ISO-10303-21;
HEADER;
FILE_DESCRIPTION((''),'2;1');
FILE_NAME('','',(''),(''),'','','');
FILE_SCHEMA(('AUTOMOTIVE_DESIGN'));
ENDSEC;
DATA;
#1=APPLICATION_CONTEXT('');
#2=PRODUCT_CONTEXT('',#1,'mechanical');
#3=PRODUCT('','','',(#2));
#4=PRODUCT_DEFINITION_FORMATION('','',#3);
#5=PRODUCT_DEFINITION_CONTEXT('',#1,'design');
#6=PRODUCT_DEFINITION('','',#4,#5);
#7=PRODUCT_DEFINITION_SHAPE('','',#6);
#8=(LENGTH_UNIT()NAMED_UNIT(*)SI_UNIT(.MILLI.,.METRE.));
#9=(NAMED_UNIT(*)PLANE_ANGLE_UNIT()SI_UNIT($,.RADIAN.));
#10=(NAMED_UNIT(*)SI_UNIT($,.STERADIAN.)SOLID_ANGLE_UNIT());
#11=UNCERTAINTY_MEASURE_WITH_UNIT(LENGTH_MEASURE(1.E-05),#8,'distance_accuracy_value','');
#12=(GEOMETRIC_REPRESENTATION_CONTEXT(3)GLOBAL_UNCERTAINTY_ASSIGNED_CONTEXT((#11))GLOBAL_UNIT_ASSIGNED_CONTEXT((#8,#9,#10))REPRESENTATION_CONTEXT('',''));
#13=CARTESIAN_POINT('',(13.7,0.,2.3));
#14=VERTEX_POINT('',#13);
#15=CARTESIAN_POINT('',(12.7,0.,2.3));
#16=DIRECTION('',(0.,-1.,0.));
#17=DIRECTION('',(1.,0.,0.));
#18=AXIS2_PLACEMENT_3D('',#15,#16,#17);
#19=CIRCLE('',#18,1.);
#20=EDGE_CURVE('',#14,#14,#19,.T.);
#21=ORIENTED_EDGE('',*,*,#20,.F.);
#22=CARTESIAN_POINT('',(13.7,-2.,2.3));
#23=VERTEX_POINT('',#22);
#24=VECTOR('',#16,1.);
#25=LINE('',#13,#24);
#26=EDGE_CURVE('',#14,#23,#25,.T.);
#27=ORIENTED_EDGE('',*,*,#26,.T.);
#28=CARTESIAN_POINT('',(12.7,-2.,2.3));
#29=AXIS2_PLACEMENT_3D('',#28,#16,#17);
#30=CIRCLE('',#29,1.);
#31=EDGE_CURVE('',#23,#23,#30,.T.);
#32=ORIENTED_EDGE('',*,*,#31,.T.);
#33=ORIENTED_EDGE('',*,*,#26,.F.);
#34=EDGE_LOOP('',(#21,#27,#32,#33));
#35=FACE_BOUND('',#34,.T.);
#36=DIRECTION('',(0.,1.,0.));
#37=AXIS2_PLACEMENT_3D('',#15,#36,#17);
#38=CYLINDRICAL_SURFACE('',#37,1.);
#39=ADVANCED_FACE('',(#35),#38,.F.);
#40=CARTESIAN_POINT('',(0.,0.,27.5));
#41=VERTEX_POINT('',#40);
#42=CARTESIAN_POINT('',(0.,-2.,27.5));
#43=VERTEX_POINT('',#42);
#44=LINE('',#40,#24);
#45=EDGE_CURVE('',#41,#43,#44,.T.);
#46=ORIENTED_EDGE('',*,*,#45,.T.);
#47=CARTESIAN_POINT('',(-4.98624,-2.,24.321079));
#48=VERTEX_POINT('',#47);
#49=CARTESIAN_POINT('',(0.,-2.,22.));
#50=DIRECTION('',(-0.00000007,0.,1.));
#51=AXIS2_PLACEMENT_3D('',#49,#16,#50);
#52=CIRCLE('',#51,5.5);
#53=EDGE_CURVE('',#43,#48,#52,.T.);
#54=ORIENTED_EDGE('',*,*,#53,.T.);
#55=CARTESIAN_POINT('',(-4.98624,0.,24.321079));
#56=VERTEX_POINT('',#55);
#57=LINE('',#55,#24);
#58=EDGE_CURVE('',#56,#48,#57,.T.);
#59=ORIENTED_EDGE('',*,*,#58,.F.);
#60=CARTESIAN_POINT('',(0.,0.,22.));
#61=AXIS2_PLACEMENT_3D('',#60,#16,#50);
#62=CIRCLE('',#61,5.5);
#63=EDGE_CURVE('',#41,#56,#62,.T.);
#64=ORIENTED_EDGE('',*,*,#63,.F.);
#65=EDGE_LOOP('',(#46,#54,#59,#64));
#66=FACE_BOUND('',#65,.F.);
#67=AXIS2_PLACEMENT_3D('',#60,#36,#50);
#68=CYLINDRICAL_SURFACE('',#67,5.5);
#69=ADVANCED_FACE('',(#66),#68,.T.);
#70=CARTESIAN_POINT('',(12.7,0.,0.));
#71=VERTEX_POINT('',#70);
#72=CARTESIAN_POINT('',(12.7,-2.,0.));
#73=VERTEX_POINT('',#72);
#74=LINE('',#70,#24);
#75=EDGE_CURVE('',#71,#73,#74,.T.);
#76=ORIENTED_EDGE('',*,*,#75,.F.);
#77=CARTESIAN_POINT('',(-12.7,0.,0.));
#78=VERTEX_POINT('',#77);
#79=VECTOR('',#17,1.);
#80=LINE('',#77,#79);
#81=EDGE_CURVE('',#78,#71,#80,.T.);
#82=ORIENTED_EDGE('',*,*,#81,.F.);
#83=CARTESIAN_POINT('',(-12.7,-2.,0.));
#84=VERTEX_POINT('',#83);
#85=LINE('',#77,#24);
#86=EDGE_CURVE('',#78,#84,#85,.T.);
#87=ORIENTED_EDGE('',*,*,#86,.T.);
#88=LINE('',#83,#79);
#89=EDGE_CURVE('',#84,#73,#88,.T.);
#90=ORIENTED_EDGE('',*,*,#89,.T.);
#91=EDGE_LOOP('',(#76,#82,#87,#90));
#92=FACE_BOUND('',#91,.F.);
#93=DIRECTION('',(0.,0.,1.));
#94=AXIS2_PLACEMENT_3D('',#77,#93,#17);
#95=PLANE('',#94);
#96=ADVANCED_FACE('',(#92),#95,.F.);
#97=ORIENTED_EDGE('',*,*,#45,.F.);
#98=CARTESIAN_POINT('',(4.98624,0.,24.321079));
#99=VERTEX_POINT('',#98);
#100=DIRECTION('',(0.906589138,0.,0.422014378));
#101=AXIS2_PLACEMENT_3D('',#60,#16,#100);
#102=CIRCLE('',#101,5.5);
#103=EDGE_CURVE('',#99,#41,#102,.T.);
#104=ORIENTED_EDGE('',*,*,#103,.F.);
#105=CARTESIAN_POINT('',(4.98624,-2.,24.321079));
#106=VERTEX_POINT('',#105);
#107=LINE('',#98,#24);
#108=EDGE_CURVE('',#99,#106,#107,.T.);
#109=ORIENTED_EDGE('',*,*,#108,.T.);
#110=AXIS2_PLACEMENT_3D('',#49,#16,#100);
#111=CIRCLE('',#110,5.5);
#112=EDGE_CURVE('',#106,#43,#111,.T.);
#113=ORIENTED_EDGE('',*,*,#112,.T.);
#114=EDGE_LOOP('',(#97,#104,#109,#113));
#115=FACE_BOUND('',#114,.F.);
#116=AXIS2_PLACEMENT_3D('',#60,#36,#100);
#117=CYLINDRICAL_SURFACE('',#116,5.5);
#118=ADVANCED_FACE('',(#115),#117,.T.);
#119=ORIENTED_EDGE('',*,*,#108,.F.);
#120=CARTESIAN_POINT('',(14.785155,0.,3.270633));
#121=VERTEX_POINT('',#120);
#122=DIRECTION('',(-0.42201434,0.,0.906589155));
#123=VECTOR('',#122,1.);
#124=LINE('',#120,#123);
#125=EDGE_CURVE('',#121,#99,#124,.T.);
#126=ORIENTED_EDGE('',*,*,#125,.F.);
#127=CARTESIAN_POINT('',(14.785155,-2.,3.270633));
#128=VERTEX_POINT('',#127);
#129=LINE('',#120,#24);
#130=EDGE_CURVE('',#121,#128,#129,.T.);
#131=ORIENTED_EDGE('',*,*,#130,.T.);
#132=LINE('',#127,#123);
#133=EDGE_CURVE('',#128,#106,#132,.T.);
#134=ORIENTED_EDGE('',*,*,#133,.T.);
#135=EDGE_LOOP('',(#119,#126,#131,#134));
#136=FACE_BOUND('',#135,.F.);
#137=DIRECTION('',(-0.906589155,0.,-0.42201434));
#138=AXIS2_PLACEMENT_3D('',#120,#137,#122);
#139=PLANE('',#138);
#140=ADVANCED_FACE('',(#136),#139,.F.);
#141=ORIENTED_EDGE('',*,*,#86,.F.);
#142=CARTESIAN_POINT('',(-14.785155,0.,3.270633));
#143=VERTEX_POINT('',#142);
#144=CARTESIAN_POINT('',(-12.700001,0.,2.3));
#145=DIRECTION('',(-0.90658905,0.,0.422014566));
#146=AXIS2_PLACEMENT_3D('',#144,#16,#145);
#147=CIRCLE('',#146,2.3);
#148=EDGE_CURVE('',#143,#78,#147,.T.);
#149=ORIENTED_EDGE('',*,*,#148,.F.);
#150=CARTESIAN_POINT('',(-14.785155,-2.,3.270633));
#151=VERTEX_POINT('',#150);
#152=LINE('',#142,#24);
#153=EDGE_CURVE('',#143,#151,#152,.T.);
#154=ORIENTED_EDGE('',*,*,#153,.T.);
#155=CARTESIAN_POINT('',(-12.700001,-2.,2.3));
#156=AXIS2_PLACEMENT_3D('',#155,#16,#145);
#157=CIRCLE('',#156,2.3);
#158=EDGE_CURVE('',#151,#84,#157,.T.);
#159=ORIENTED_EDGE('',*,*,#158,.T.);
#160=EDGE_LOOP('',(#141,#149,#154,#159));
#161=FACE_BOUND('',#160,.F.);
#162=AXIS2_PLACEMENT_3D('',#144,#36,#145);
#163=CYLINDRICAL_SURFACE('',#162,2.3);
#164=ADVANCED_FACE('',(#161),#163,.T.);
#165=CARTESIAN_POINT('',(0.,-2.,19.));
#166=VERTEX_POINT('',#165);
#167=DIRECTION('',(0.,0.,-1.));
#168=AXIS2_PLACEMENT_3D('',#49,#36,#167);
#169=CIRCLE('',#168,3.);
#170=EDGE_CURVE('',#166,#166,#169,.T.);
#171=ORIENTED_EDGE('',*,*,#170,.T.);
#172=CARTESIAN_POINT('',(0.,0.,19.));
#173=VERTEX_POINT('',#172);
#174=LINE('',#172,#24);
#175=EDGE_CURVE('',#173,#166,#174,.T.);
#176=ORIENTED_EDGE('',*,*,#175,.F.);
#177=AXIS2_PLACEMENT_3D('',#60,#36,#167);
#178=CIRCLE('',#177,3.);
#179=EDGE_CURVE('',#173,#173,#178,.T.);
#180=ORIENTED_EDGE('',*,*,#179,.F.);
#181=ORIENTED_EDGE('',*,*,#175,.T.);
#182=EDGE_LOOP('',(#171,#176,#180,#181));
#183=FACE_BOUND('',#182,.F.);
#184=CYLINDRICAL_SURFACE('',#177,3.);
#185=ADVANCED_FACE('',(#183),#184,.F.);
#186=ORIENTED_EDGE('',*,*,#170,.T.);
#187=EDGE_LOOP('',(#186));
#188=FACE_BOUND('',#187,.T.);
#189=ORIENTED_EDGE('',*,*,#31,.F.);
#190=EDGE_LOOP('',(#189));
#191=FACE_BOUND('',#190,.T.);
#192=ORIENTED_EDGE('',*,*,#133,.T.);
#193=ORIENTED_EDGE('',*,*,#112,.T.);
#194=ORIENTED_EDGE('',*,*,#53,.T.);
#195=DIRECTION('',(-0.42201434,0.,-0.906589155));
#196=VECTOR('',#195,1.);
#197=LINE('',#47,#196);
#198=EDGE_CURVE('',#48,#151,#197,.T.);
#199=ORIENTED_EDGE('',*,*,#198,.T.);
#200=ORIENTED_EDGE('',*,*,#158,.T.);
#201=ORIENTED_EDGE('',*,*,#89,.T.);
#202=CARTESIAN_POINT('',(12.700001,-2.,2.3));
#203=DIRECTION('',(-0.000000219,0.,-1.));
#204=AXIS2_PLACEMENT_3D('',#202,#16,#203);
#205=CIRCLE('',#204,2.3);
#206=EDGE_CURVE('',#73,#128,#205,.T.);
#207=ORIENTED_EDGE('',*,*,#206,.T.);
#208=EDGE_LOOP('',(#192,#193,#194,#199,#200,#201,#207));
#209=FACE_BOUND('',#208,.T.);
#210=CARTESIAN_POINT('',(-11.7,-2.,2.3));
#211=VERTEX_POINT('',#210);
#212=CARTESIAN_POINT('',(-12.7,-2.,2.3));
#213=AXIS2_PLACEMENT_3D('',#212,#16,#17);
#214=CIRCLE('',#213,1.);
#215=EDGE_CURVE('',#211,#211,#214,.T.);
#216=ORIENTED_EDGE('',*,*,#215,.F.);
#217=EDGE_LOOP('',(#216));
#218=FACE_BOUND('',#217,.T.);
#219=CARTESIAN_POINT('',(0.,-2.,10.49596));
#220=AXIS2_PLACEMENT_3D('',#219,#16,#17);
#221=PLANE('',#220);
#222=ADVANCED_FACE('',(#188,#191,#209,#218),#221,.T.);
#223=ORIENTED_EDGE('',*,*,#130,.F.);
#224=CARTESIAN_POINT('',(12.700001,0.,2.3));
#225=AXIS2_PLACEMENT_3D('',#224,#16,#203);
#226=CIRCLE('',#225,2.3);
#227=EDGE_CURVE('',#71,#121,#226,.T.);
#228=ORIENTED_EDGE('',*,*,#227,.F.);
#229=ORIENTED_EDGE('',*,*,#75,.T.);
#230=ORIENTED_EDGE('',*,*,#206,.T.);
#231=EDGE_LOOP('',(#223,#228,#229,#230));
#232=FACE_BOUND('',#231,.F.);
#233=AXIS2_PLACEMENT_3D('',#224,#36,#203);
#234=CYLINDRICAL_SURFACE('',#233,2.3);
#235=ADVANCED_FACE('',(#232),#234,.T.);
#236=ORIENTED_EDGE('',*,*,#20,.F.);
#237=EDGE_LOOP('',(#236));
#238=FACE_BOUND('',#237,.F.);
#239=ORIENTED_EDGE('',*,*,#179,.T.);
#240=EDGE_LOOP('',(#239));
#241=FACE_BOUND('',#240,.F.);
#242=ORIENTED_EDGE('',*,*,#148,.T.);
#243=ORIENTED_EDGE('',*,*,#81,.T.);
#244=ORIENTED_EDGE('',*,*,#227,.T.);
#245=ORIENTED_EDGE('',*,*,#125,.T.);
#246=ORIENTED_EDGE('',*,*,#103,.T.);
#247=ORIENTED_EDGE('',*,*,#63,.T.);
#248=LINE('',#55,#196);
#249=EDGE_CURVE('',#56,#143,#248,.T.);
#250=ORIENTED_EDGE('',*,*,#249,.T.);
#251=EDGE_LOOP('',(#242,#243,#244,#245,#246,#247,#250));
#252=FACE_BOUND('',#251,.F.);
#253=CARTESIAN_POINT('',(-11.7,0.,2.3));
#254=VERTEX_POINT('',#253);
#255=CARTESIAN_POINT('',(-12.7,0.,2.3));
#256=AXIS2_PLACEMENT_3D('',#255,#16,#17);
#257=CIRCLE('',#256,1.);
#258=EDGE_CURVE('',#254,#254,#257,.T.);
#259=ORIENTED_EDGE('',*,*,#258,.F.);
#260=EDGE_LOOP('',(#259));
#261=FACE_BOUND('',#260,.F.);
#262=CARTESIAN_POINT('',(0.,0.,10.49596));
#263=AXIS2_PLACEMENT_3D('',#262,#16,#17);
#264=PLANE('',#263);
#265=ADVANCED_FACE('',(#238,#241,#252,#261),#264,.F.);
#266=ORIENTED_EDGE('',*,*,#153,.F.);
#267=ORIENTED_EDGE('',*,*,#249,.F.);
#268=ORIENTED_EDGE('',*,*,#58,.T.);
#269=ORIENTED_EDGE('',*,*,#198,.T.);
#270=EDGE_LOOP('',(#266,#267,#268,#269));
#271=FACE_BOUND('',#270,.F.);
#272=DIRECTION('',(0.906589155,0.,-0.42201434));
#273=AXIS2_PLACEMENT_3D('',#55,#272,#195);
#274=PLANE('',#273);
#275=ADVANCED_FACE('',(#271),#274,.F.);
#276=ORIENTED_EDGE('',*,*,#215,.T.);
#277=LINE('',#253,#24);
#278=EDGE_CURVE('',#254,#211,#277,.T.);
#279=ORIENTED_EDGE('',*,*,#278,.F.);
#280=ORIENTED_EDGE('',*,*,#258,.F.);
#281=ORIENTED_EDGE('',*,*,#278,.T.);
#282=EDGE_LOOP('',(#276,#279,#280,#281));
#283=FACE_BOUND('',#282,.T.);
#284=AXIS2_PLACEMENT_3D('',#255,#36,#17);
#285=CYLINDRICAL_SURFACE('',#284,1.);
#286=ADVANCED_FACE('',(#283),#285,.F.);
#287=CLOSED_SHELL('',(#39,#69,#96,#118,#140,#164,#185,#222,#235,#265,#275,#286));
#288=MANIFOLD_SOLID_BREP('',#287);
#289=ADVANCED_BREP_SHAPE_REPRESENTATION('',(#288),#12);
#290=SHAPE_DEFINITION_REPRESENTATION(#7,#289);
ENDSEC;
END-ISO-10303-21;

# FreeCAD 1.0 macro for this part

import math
import FreeCAD as App
import Part
import Sketcher

doc = App.newDocument("Part")
body = doc.addObject("PartDesign::Body", "Body")

sketch1 = body.newObject("Sketcher::SketchObject", "Sketch")
sketch1.AttachmentSupport = (doc.getObject("XZ_Plane"), [""])
sketch1.MapMode = "FlatFace"
sketch1.addGeometry(Part.LineSegment(App.Vector(14.8, 3.3, 0), App.Vector(5, 24.3, 0)), False)
sketch1.addGeometry(Part.ArcOfCircle(Part.Circle(App.Vector(0, 22, 0), App.Vector(0, 0, 1), 5.5), math.radians(25), math.radians(90)), False)
sketch1.addGeometry(Part.ArcOfCircle(Part.Circle(App.Vector(0, 22, 0), App.Vector(0, 0, 1), 5.5), math.radians(90), math.radians(155)), False)
sketch1.addGeometry(Part.LineSegment(App.Vector(-5, 24.3, 0), App.Vector(-14.8, 3.3, 0)), False)
sketch1.addGeometry(Part.ArcOfCircle(Part.Circle(App.Vector(-12.7, 2.3, 0), App.Vector(0, 0, 1), 2.3), math.radians(155), math.radians(270)), False)
sketch1.addGeometry(Part.LineSegment(App.Vector(-12.7, 0, 0), App.Vector(12.7, 0, 0)), False)
sketch1.addGeometry(Part.ArcOfCircle(Part.Circle(App.Vector(12.7, 2.3, 0), App.Vector(0, 0, 1), 2.3), math.radians(-90), math.radians(25)), False)
sketch1.addGeometry(Part.Circle(App.Vector(-12.7, 2.3, 0), App.Vector(0, 0, 1), 1), False)
sketch1.addGeometry(Part.Circle(App.Vector(12.7, 2.3, 0), App.Vector(0, 0, 1), 1), False)
sketch1.addGeometry(Part.Circle(App.Vector(0, 22, 0), App.Vector(0, 0, 1), 3), False)
sketch1.addConstraint(Sketcher.Constraint("Tangent", 0, 2, 1, 1))
sketch1.addConstraint(Sketcher.Constraint("Tangent", 1, 2, 2, 1))
sketch1.addConstraint(Sketcher.Constraint("Tangent", 2, 2, 3, 1))
sketch1.addConstraint(Sketcher.Constraint("Tangent", 3, 2, 4, 1))
sketch1.addConstraint(Sketcher.Constraint("Tangent", 4, 2, 5, 1))
sketch1.addConstraint(Sketcher.Constraint("Tangent", 5, 2, 6, 1))
sketch1.addConstraint(Sketcher.Constraint("Tangent", 6, 2, 0, 1))
sketch1.addConstraint(Sketcher.Constraint("Horizontal", 5))
sketch1.addConstraint(Sketcher.Constraint("Coincident", 7, 3, 4, 3))
sketch1.addConstraint(Sketcher.Constraint("Coincident", 8, 3, 6, 3))
sketch1.addConstraint(Sketcher.Constraint("Coincident", 9, 3, 1, 3))
sketch1.addConstraint(Sketcher.Constraint("Equal", 1, 2))
sketch1.addConstraint(Sketcher.Constraint("Equal", 4, 6))
sketch1.addConstraint(Sketcher.Constraint("Equal", 7, 8))
sketch1.addConstraint(Sketcher.Constraint("Symmetric", 4, 2, 5, 2, -1, 1))
sketch1.addConstraint(Sketcher.Constraint("PointOnObject", 1, 3, -2))
sketch1.addConstraint(Sketcher.Constraint("PointOnObject", 1, 2, -2))
sketch1.addConstraint(Sketcher.Constraint("Diameter", 7, 2.0))
sketch1.addConstraint(Sketcher.Constraint("Diameter", 9, 6.0))
sketch1.addConstraint(Sketcher.Constraint("Radius", 1, 5.5))
sketch1.addConstraint(Sketcher.Constraint("Radius", 4, 2.3))
sketch1.addConstraint(Sketcher.Constraint("DistanceX", 5, 1, 5, 2, 25.4))
sketch1.addConstraint(Sketcher.Constraint("DistanceY", -1, 1, 1, 3, 22.0))
pad1 = body.newObject("PartDesign::Pad", "Pad")
pad1.Profile = sketch1
pad1.Length = 2

doc.recompute()
